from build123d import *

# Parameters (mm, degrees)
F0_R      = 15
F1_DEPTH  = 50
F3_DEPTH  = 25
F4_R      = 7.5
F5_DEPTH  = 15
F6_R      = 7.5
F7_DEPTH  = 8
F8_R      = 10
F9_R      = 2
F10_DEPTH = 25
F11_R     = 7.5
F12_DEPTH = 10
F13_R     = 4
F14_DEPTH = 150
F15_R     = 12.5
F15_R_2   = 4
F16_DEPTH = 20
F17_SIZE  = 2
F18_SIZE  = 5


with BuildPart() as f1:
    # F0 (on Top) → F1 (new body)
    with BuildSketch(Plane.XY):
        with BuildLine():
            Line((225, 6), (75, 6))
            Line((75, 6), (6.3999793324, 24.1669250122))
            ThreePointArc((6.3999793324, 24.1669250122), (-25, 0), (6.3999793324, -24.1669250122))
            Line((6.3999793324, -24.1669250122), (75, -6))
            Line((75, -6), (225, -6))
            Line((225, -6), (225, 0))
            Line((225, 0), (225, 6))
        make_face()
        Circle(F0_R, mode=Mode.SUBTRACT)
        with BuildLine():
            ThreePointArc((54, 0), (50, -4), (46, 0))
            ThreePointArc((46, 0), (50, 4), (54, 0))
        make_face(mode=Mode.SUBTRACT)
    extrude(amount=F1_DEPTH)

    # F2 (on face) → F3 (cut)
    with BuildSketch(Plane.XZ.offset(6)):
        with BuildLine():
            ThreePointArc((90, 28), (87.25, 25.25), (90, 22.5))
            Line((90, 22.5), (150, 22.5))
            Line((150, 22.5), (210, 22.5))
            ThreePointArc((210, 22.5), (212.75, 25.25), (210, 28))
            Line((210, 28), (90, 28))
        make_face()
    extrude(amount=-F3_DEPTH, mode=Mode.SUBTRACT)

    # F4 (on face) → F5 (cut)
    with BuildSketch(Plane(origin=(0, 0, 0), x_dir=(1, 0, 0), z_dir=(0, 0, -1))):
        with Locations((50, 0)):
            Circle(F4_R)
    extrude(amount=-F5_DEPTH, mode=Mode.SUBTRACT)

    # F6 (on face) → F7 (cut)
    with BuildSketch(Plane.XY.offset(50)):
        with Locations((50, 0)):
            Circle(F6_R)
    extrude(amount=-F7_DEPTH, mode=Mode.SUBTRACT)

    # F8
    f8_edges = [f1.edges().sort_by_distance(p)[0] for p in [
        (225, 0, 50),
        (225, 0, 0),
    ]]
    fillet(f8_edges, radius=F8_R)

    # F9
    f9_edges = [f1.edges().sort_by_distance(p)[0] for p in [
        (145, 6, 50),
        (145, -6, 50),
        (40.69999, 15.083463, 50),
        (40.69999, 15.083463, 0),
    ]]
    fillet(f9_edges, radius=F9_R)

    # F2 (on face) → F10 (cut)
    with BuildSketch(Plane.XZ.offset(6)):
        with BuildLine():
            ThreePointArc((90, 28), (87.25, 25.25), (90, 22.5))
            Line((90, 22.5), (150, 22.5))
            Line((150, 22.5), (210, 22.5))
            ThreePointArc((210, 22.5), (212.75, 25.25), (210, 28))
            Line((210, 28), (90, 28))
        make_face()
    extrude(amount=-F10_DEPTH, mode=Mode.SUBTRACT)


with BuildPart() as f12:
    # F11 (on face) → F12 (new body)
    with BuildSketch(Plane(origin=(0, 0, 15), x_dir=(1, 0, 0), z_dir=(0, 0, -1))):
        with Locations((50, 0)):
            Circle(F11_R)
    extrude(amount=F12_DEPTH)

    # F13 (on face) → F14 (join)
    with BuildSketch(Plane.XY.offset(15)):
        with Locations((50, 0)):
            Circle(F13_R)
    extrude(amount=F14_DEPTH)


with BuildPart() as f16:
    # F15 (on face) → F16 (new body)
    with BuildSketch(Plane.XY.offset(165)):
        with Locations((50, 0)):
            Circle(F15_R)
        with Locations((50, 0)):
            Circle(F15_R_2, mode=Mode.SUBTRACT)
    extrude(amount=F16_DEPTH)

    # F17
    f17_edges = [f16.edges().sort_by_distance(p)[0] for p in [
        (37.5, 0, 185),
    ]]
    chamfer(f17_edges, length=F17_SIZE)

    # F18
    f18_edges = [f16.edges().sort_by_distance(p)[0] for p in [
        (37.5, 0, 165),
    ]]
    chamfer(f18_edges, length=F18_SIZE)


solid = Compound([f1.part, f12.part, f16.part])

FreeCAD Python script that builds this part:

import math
import FreeCAD as App
import Part
import Sketcher


def edges_at(feature, points):
    """Names of the edges that pass closest to the given points."""
    edges = feature.Shape.Edges
    near = lambda p: min(range(len(edges)), key=lambda i: edges[i].distToShape(Part.Vertex(*p))[0])
    return sorted({f"Edge{near(p) + 1}" for p in points})

doc = App.newDocument("Part")
params = doc.addObject("Spreadsheet::Sheet", "Params")
for row, (alias, value) in enumerate([
    ("sketch1_diameter", "30 mm"),
    ("sketch1_diameter2", "8 mm"),
    ("sketch1_radius", "25 mm"),
    ("sketch1_width", "150 mm"),
    ("sketch1_height", "12 mm"),
    ("pad1_length", "50 mm"),
    ("sketch2_width", "120 mm"),
    ("sketch2_radius", "2.75 mm"),
    ("pocket1_length", "25 mm"),
    ("sketch3_diameter", "15 mm"),
    ("pocket2_length", "15 mm"),
    ("sketch4_diameter", "15 mm"),
    ("pocket3_length", "8 mm"),
    ("fillet_radius", "10 mm"),
    ("fillet2_radius", "2 mm"),
    ("sketch5_width", "120 mm"),
    ("sketch5_radius", "2.75 mm"),
    ("pocket4_length", "25 mm"),
    ("sketch6_diameter", "15 mm"),
    ("pad2_length", "10 mm"),
    ("sketch7_diameter", "8 mm"),
    ("pad3_length", "150 mm"),
    ("sketch8_diameter", "25 mm"),
    ("sketch8_diameter2", "8 mm"),
    ("pad4_length", "20 mm"),
    ("chamfer_size", "2 mm"),
    ("chamfer2_size", "5 mm"),
], start=1):
    params.set(f"A{row}", alias)
    params.set(f"B{row}", "=" + value)
    params.setAlias(f"B{row}", alias)

body = doc.addObject("PartDesign::Body", "Body")

# Sketch on XY plane
sketch1 = doc.addObject("Sketcher::SketchObject", "Sketch")
body.addObject(sketch1)
sketch1.AttachmentSupport = (doc.XY_Plane, [""])
sketch1.MapMode = "FlatFace"
sketch1.addGeometry([
    Part.LineSegment(App.Vector(225, 6, 0), App.Vector(75, 6, 0)),  # 0
    Part.LineSegment(App.Vector(75, 6, 0), App.Vector(6.399979, 24.166925, 0)),  # 1
    Part.ArcOfCircle(Part.Circle(App.Vector(0, 0, 0), App.Vector(0, 0, 1), 25), math.radians(75.167201), math.radians(284.832799)),  # 2
    Part.LineSegment(App.Vector(6.399979, -24.166925, 0), App.Vector(75, -6, 0)),  # 3
    Part.LineSegment(App.Vector(75, -6, 0), App.Vector(225, -6, 0)),  # 4
    Part.LineSegment(App.Vector(225, -6, 0), App.Vector(225, 6, 0)),  # 5
    Part.Circle(App.Vector(0, 0, 0), App.Vector(0, 0, 1), 15),  # 6
    Part.Circle(App.Vector(50, 0, 0), App.Vector(0, 0, 1), 4),  # 7
], False)
sketch1.addConstraint([
    Sketcher.Constraint("Coincident", 0, 2, 1, 1),
    Sketcher.Constraint("Tangent", 1, 2, 2, 1),
    Sketcher.Constraint("Tangent", 2, 2, 3, 1),
    Sketcher.Constraint("Coincident", 3, 2, 4, 1),
    Sketcher.Constraint("Coincident", 4, 2, 5, 1),
    Sketcher.Constraint("Coincident", 5, 2, 0, 1),
    Sketcher.Constraint("Horizontal", 0),
    Sketcher.Constraint("Horizontal", 4),
    Sketcher.Constraint("Vertical", 5),
    Sketcher.Constraint("Coincident", 2, 3, -1, 1),
    Sketcher.Constraint("Coincident", 6, 3, -1, 1),
    Sketcher.Constraint("Symmetric", 0, 2, 3, 2, -1),
    Sketcher.Constraint("PointOnObject", 7, 3, -1),
    Sketcher.Constraint("Diameter", 6, 30.0),
    Sketcher.Constraint("Diameter", 7, 8.0),
    Sketcher.Constraint("Radius", 2, 25.0),
    Sketcher.Constraint("DistanceX", 0, 2, 0, 1, 150.0),
    Sketcher.Constraint("DistanceY", 5, 1, 5, 2, 12.0),
    Sketcher.Constraint("DistanceX", -1, 1, 7, 3, 50.0),
    Sketcher.Constraint("DistanceX", -1, 1, 0, 2, 75.0),
])
sketch1.setExpression("Constraints[13]", "Params.sketch1_diameter")
sketch1.setExpression("Constraints[14]", "Params.sketch1_diameter2")
sketch1.setExpression("Constraints[15]", "Params.sketch1_radius")
sketch1.setExpression("Constraints[16]", "Params.sketch1_width")
sketch1.setExpression("Constraints[17]", "Params.sketch1_height")
pad1 = doc.addObject("PartDesign::Pad", "Pad")
body.addObject(pad1)
pad1.Profile = sketch1
pad1.setExpression("Length", "Params.pad1_length")

# Sketch on XZ plane
sketch2 = doc.addObject("Sketcher::SketchObject", "Sketch001")
body.addObject(sketch2)
sketch2.AttachmentSupport = (doc.XZ_Plane, [""])
sketch2.MapMode = "FlatFace"
sketch2.AttachmentOffset = App.Placement(App.Vector(0, 0, 6), App.Rotation())
sketch2.addGeometry([
    Part.ArcOfCircle(Part.Circle(App.Vector(90, 25.25, 0), App.Vector(0, 0, 1), 2.75), math.radians(90), math.radians(270)),
    Part.LineSegment(App.Vector(90, 22.5, 0), App.Vector(210, 22.5, 0)),
    Part.ArcOfCircle(Part.Circle(App.Vector(210, 25.25, 0), App.Vector(0, 0, 1), 2.75), math.radians(-90), math.radians(90)),
    Part.LineSegment(App.Vector(210, 28, 0), App.Vector(90, 28, 0)),
], False)
sketch2.addConstraint([
    Sketcher.Constraint("Tangent", 0, 2, 1, 1),
    Sketcher.Constraint("Tangent", 1, 2, 2, 1),
    Sketcher.Constraint("Tangent", 2, 2, 3, 1),
    Sketcher.Constraint("Tangent", 3, 2, 0, 1),
    Sketcher.Constraint("Horizontal", 1),
    Sketcher.Constraint("Horizontal", 3),
    Sketcher.Constraint("DistanceX", 1, 1, 1, 2, 120.0),
    Sketcher.Constraint("Radius", 0, 2.75),
    Sketcher.Constraint("DistanceX", -1, 1, 0, 3, 90.0),
    Sketcher.Constraint("DistanceY", -1, 1, 2, 2, 28.0),
])
sketch2.setExpression("Constraints[6]", "Params.sketch2_width")
sketch2.setExpression("Constraints[7]", "Params.sketch2_radius")
pocket1 = doc.addObject("PartDesign::Pocket", "Pocket")
body.addObject(pocket1)
pocket1.Profile = sketch2
pocket1.setExpression("Length", "Params.pocket1_length")

# Sketch on XY plane
sketch3 = doc.addObject("Sketcher::SketchObject", "Sketch002")
body.addObject(sketch3)
sketch3.AttachmentSupport = (doc.XY_Plane, [""])
sketch3.MapMode = "FlatFace"
sketch3.addGeometry(Part.Circle(App.Vector(50, 0, 0), App.Vector(0, 0, 1), 7.5), False)
sketch3.addConstraint([
    Sketcher.Constraint("PointOnObject", 0, 3, -1),
    Sketcher.Constraint("Diameter", 0, 15.0),
    Sketcher.Constraint("DistanceX", -1, 1, 0, 3, 50.0),
])
sketch3.setExpression("Constraints[1]", "Params.sketch3_diameter")
pocket2 = doc.addObject("PartDesign::Pocket", "Pocket001")
body.addObject(pocket2)
pocket2.Profile = sketch3
pocket2.setExpression("Length", "Params.pocket2_length")
pocket2.Reversed = True

# Sketch on XY plane
sketch4 = doc.addObject("Sketcher::SketchObject", "Sketch003")
body.addObject(sketch4)
sketch4.AttachmentSupport = (doc.XY_Plane, [""])
sketch4.MapMode = "FlatFace"
sketch4.AttachmentOffset = App.Placement(App.Vector(0, 0, 50), App.Rotation())
sketch4.addGeometry(Part.Circle(App.Vector(50, 0, 0), App.Vector(0, 0, 1), 7.5), False)
sketch4.addConstraint([
    Sketcher.Constraint("PointOnObject", 0, 3, -1),
    Sketcher.Constraint("Diameter", 0, 15.0),
    Sketcher.Constraint("DistanceX", -1, 1, 0, 3, 50.0),
])
sketch4.setExpression("Constraints[1]", "Params.sketch4_diameter")
pocket3 = doc.addObject("PartDesign::Pocket", "Pocket002")
body.addObject(pocket3)
pocket3.Profile = sketch4
pocket3.setExpression("Length", "Params.pocket3_length")
doc.recompute()

fillet = doc.addObject("PartDesign::Fillet", "Fillet")
body.addObject(fillet)
fillet.Base = (pocket3, edges_at(pocket3, [(225, 0, 50), (225, 0, 0)]))
fillet.setExpression("Radius", "Params.fillet_radius")
doc.recompute()

fillet2 = doc.addObject("PartDesign::Fillet", "Fillet001")
body.addObject(fillet2)
fillet2.Base = (fillet, edges_at(fillet, [
    (145, 6, 50),
    (145, -6, 50),
    (40.7, 15.083, 50),
    (40.7, 15.083, 0),
]))
fillet2.setExpression("Radius", "Params.fillet2_radius")

# Sketch on XZ plane
sketch5 = doc.addObject("Sketcher::SketchObject", "Sketch004")
body.addObject(sketch5)
sketch5.AttachmentSupport = (doc.XZ_Plane, [""])
sketch5.MapMode = "FlatFace"
sketch5.AttachmentOffset = App.Placement(App.Vector(0, 0, 6), App.Rotation())
sketch5.addGeometry([
    Part.ArcOfCircle(Part.Circle(App.Vector(90, 25.25, 0), App.Vector(0, 0, 1), 2.75), math.radians(90), math.radians(270)),
    Part.LineSegment(App.Vector(90, 22.5, 0), App.Vector(210, 22.5, 0)),
    Part.ArcOfCircle(Part.Circle(App.Vector(210, 25.25, 0), App.Vector(0, 0, 1), 2.75), math.radians(-90), math.radians(90)),
    Part.LineSegment(App.Vector(210, 28, 0), App.Vector(90, 28, 0)),
], False)
sketch5.addConstraint([
    Sketcher.Constraint("Tangent", 0, 2, 1, 1),
    Sketcher.Constraint("Tangent", 1, 2, 2, 1),
    Sketcher.Constraint("Tangent", 2, 2, 3, 1),
    Sketcher.Constraint("Tangent", 3, 2, 0, 1),
    Sketcher.Constraint("Horizontal", 1),
    Sketcher.Constraint("Horizontal", 3),
    Sketcher.Constraint("DistanceX", 1, 1, 1, 2, 120.0),
    Sketcher.Constraint("Radius", 0, 2.75),
    Sketcher.Constraint("DistanceX", -1, 1, 0, 3, 90.0),
    Sketcher.Constraint("DistanceY", -1, 1, 2, 2, 28.0),
])
sketch5.setExpression("Constraints[6]", "Params.sketch5_width")
sketch5.setExpression("Constraints[7]", "Params.sketch5_radius")
pocket4 = doc.addObject("PartDesign::Pocket", "Pocket003")
body.addObject(pocket4)
pocket4.Profile = sketch5
pocket4.setExpression("Length", "Params.pocket4_length")
body2 = doc.addObject("PartDesign::Body", "Body001")

# Sketch on XY plane
sketch6 = doc.addObject("Sketcher::SketchObject", "Sketch005")
body2.addObject(sketch6)
sketch6.AttachmentSupport = (doc.getObject("XY_Plane001"), [""])
sketch6.MapMode = "FlatFace"
sketch6.AttachmentOffset = App.Placement(App.Vector(0, 0, 15), App.Rotation())
sketch6.addGeometry(Part.Circle(App.Vector(50, 0, 0), App.Vector(0, 0, 1), 7.5), False)
sketch6.addConstraint([
    Sketcher.Constraint("PointOnObject", 0, 3, -1),
    Sketcher.Constraint("Diameter", 0, 15.0),
    Sketcher.Constraint("DistanceX", -1, 1, 0, 3, 50.0),
])
sketch6.setExpression("Constraints[1]", "Params.sketch6_diameter")
pad2 = doc.addObject("PartDesign::Pad", "Pad001")
body2.addObject(pad2)
pad2.Profile = sketch6
pad2.setExpression("Length", "Params.pad2_length")
pad2.Reversed = True

# Sketch on XY plane
sketch7 = doc.addObject("Sketcher::SketchObject", "Sketch006")
body2.addObject(sketch7)
sketch7.AttachmentSupport = (doc.getObject("XY_Plane001"), [""])
sketch7.MapMode = "FlatFace"
sketch7.AttachmentOffset = App.Placement(App.Vector(0, 0, 15), App.Rotation())
sketch7.addGeometry(Part.Circle(App.Vector(50, 0, 0), App.Vector(0, 0, 1), 4), False)
sketch7.addConstraint([
    Sketcher.Constraint("PointOnObject", 0, 3, -1),
    Sketcher.Constraint("Diameter", 0, 8.0),
    Sketcher.Constraint("DistanceX", -1, 1, 0, 3, 50.0),
])
sketch7.setExpression("Constraints[1]", "Params.sketch7_diameter")
pad3 = doc.addObject("PartDesign::Pad", "Pad002")
body2.addObject(pad3)
pad3.Profile = sketch7
pad3.setExpression("Length", "Params.pad3_length")
body3 = doc.addObject("PartDesign::Body", "Body002")

# Sketch on XY plane
sketch8 = doc.addObject("Sketcher::SketchObject", "Sketch007")
body3.addObject(sketch8)
sketch8.AttachmentSupport = (doc.getObject("XY_Plane002"), [""])
sketch8.MapMode = "FlatFace"
sketch8.AttachmentOffset = App.Placement(App.Vector(0, 0, 165), App.Rotation())
sketch8.addGeometry([
    Part.Circle(App.Vector(50, 0, 0), App.Vector(0, 0, 1), 12.5),
    Part.Circle(App.Vector(50, 0, 0), App.Vector(0, 0, 1), 4),
], False)
sketch8.addConstraint([
    Sketcher.Constraint("Coincident", 1, 3, 0, 3),
    Sketcher.Constraint("PointOnObject", 0, 3, -1),
    Sketcher.Constraint("Diameter", 0, 25.0),
    Sketcher.Constraint("Diameter", 1, 8.0),
    Sketcher.Constraint("DistanceX", -1, 1, 0, 3, 50.0),
])
sketch8.setExpression("Constraints[2]", "Params.sketch8_diameter")
sketch8.setExpression("Constraints[3]", "Params.sketch8_diameter2")
pad4 = doc.addObject("PartDesign::Pad", "Pad003")
body3.addObject(pad4)
pad4.Profile = sketch8
pad4.setExpression("Length", "Params.pad4_length")
doc.recompute()

chamfer = doc.addObject("PartDesign::Chamfer", "Chamfer")
body3.addObject(chamfer)
chamfer.Base = (pad4, edges_at(pad4, [(37.5, 0, 185)]))
chamfer.setExpression("Size", "Params.chamfer_size")
doc.recompute()

chamfer2 = doc.addObject("PartDesign::Chamfer", "Chamfer001")
body3.addObject(chamfer2)
chamfer2.Base = (chamfer, edges_at(chamfer, [(37.5, 0, 165)]))
chamfer2.setExpression("Size", "Params.chamfer2_size")

doc.recompute()
